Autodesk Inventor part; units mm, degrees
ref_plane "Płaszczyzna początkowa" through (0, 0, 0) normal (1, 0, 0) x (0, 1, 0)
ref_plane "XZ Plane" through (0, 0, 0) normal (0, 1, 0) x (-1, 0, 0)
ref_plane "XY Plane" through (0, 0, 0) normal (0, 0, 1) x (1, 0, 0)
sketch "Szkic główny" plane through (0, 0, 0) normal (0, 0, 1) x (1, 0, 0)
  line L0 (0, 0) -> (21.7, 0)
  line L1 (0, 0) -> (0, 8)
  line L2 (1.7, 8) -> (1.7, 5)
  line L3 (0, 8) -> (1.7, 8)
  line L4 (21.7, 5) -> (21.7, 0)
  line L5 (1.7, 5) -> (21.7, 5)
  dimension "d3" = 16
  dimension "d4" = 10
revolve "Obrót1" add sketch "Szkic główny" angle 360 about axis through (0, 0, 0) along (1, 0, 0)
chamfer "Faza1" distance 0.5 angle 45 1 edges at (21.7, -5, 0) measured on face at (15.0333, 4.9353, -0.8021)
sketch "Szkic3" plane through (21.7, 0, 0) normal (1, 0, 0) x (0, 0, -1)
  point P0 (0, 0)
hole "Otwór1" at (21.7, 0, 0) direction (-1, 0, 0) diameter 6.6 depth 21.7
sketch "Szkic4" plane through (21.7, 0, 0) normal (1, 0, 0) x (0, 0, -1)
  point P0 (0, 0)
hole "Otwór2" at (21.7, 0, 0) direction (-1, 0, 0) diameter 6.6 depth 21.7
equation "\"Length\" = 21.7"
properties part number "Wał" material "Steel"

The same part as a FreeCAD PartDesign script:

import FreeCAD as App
import Part
import Sketcher

V = App.Vector


def edges_at(feature, points):
    """Names of the edges that pass closest to the given points."""
    edges = feature.Shape.Edges
    near = lambda p: min(range(len(edges)), key=lambda i: edges[i].distToShape(Part.Vertex(*p))[0])
    return sorted({f"Edge{near(p) + 1}" for p in points})


def add_polygon(sketch, points):
    """Adds a closed chain of lines whose ends are joined by coincident constraints."""
    first, n = sketch.GeometryCount, len(points)
    for a, b in zip(points, points[1:] + points[:1]):
        sketch.addGeometry(Part.LineSegment(App.Vector(*a, 0), App.Vector(*b, 0)), False)
    for i in range(n):
        sketch.addConstraint(Sketcher.Constraint("Coincident", first + i, 2, first + (i + 1) % n, 1))

doc = App.newDocument("Part")
params = doc.addObject("Spreadsheet::Sheet", "Params")
for row, (alias, value) in enumerate([
    ("sketch1_width", "20 mm"),
    ("sketch1_height", "8 mm"),
    ("sketch1_height2", "5 mm"),
    ("sketch1_width2", "21.7 mm"),
    ("revolution_angle", "360 deg"),
    ("chamfer_size", "0.5 mm"),
    ("sketch2_diameter", "6.6 mm"),
    ("hole_diameter", "6.6 mm"),
    ("hole_depth", "21.7 mm"),
    ("sketch3_diameter", "6.6 mm"),
    ("hole2_diameter", "6.6 mm"),
    ("hole2_depth", "21.7 mm"),
], start=1):
    params.set(f"A{row}", alias)
    params.set(f"B{row}", "=" + value)
    params.setAlias(f"B{row}", alias)

body = doc.addObject("PartDesign::Body", "Body")

# Sketch on XY plane
sketch1 = body.newObject("Sketcher::SketchObject", "Sketch")
sketch1.AttachmentSupport = (doc.getObject("XY_Plane"), [""])
sketch1.MapMode = "FlatFace"
add_polygon(sketch1, [(0, 8), (0, 0), (21.7, 0), (21.7, 5), (1.7, 5), (1.7, 8)])  # lines 0-5
sketch1.addConstraint([
    Sketcher.Constraint("Vertical", 0),
    Sketcher.Constraint("Horizontal", 1),
    Sketcher.Constraint("Vertical", 2),
    Sketcher.Constraint("Horizontal", 3),
    Sketcher.Constraint("Vertical", 4),
    Sketcher.Constraint("Horizontal", 5),
    Sketcher.Constraint("Coincident", 0, 2, -1, 1),
    Sketcher.Constraint("DistanceX", 3, 2, 3, 1, 20.0),
    Sketcher.Constraint("DistanceY", 0, 2, 0, 1, 8.0),
    Sketcher.Constraint("DistanceY", 2, 1, 2, 2, 5.0),
    Sketcher.Constraint("DistanceX", 1, 1, 1, 2, 21.7),
])
sketch1.setExpression("Constraints[13]", "Params.sketch1_width")
sketch1.setExpression("Constraints[14]", "Params.sketch1_height")
sketch1.setExpression("Constraints[15]", "Params.sketch1_height2")
sketch1.setExpression("Constraints[16]", "Params.sketch1_width2")
revolution = body.newObject("PartDesign::Revolution", "Revolution")
revolution.Profile = sketch1
revolution.ReferenceAxis = (sketch1, ["H_Axis"])
revolution.setExpression("Angle", "Params.revolution_angle")
doc.recompute()

chamfer = body.newObject("PartDesign::Chamfer", "Chamfer")
chamfer.Base = (revolution, edges_at(revolution, [(21.7, -5, 0)]))
chamfer.setExpression("Size", "Params.chamfer_size")

# Sketch on YZ plane
sketch2 = body.newObject("Sketcher::SketchObject", "Sketch001")
sketch2.AttachmentSupport = (doc.getObject("YZ_Plane"), [""])
sketch2.MapMode = "FlatFace"
sketch2.AttachmentOffset = App.Placement(V(0, 0, 21.7), App.Rotation())
sketch2.addGeometry(Part.Circle(V(0, 0, 0), V(0, 0, 1), 3.3), False)
sketch2.addConstraint([
    Sketcher.Constraint("Coincident", 0, 3, -1, 1),
    Sketcher.Constraint("Diameter", 0, 6.6),
])
sketch2.setExpression("Constraints[1]", "Params.sketch2_diameter")
doc.recompute()
hole = body.newObject("PartDesign::Hole", "Hole")
hole.Profile = sketch2
hole.ThreadType = "None"
hole.setExpression("Diameter", "Params.hole_diameter")
hole.DepthType = "Dimension"
hole.setExpression("Depth", "Params.hole_depth")
hole.DrillPoint = "Flat"

# Sketch on YZ plane
sketch3 = body.newObject("Sketcher::SketchObject", "Sketch002")
sketch3.AttachmentSupport = (doc.getObject("YZ_Plane"), [""])
sketch3.MapMode = "FlatFace"
sketch3.AttachmentOffset = App.Placement(V(0, 0, 21.7), App.Rotation())
sketch3.addGeometry(Part.Circle(V(0, 0, 0), V(0, 0, 1), 3.3), False)
sketch3.addConstraint([
    Sketcher.Constraint("Coincident", 0, 3, -1, 1),
    Sketcher.Constraint("Diameter", 0, 6.6),
])
sketch3.setExpression("Constraints[1]", "Params.sketch3_diameter")
doc.recompute()
hole2 = body.newObject("PartDesign::Hole", "Hole001")
hole2.Profile = sketch3
hole2.ThreadType = "None"
hole2.setExpression("Diameter", "Params.hole2_diameter")
hole2.DepthType = "Dimension"
hole2.setExpression("Depth", "Params.hole2_depth")
hole2.DrillPoint = "Flat"

doc.recompute()
